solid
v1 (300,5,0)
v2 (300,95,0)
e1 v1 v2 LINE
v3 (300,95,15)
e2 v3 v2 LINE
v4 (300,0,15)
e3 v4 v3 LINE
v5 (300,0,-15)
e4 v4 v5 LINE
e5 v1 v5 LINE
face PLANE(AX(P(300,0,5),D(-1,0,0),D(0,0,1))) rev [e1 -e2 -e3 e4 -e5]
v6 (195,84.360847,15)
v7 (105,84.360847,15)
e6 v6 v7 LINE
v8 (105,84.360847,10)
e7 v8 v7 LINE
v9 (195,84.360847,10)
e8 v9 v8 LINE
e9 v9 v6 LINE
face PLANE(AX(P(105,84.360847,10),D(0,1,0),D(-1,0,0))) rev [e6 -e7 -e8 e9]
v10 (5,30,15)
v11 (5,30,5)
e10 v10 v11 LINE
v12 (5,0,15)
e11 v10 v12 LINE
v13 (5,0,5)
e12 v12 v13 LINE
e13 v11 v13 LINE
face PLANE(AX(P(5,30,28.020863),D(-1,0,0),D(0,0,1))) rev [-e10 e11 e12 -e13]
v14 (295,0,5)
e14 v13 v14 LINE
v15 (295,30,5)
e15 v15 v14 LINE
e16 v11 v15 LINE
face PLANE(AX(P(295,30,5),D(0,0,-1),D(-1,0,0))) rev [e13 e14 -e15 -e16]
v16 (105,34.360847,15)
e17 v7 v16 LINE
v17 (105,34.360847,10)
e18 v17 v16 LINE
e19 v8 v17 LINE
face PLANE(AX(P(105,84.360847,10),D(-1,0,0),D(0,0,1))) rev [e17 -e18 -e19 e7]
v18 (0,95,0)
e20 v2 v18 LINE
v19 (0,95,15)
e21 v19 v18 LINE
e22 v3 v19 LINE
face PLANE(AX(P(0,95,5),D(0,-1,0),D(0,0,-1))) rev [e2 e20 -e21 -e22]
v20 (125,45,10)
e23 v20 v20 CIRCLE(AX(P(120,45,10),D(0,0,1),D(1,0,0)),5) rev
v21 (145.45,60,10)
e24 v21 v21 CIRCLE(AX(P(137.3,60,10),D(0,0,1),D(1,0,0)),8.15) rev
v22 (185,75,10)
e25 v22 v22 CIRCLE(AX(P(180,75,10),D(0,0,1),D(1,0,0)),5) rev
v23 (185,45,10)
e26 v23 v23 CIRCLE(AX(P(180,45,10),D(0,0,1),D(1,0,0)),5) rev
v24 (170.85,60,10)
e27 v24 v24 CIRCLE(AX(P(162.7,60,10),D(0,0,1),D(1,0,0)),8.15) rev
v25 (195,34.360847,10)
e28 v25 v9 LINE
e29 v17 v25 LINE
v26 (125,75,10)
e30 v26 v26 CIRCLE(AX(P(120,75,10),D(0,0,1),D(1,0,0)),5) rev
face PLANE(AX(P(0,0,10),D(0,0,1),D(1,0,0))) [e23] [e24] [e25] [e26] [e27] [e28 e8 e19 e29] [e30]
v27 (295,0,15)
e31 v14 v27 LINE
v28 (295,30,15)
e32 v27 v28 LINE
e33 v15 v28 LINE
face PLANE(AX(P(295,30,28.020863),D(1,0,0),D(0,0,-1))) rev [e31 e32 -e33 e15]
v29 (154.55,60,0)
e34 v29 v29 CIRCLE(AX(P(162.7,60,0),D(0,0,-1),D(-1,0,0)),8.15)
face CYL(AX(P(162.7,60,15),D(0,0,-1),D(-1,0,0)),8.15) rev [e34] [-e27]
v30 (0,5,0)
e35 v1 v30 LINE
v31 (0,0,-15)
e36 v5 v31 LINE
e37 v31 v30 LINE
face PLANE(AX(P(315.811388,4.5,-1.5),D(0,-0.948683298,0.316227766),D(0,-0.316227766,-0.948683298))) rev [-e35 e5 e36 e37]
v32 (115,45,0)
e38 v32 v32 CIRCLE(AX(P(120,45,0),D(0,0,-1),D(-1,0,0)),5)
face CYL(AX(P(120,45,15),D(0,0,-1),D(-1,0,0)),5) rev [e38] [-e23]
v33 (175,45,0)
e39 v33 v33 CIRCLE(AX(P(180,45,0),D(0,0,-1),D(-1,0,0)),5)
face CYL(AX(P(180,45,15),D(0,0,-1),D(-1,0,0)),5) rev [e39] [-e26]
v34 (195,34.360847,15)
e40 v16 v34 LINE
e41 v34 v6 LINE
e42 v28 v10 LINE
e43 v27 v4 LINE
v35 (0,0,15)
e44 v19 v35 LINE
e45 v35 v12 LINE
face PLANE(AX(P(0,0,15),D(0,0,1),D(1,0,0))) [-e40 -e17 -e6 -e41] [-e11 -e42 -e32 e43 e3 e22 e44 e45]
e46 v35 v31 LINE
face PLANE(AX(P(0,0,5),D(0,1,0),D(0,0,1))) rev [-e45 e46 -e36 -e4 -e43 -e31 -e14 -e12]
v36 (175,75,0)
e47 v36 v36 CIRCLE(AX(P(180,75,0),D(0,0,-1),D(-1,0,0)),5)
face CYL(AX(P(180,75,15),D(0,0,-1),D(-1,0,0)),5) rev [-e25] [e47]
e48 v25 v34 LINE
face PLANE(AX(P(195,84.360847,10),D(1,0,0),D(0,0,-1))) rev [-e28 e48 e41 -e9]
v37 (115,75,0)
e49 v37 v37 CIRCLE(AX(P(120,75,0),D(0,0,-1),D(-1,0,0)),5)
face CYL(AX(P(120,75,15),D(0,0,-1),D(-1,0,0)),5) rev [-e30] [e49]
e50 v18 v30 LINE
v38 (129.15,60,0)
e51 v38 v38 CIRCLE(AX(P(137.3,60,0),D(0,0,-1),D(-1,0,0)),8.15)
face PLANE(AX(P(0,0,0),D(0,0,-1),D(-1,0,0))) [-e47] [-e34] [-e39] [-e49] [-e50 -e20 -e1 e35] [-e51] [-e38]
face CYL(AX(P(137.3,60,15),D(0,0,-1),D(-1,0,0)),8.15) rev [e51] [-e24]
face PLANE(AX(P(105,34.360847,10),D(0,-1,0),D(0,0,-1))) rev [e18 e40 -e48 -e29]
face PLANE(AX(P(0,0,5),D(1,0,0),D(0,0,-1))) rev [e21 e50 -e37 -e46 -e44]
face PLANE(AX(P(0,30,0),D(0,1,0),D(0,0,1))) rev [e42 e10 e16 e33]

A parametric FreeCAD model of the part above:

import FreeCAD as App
import Part
import Sketcher

V = App.Vector

doc = App.newDocument("Part")
params = doc.addObject("Spreadsheet::Sheet", "Params")
for row, (alias, value) in enumerate([
    ("sketch1_width", "300 mm"),
    ("sketch1_height", "95 mm"),
    ("pad1_length", "5 mm"),
    ("sketch2_width", "5 mm"),
    ("sketch2_height", "15 mm"),
    ("pad2_length", "300 mm"),
    ("sketch3_width", "300 mm"),
    ("sketch3_height", "95 mm"),
    ("pad3_length", "10 mm"),
    ("sketch4_diameter", "10 mm"),
    ("sketch4_diameter2", "16.3 mm"),
    ("sketch5_width", "290 mm"),
    ("pocket2_length", "30 mm"),
    ("sketch6_width", "90 mm"),
    ("sketch6_height", "50 mm"),
    ("pocket3_length", "5 mm"),
], start=1):
    params.set(f"A{row}", alias)
    params.set(f"B{row}", "=" + value)
    params.setAlias(f"B{row}", alias)

body = doc.addObject("PartDesign::Body", "Body")

sketch1 = body.newObject("Sketcher::SketchObject", "Sketch")
sketch1.AttachmentSupport = (doc.getObject("XY_Plane"), [""])
sketch1.MapMode = "FlatFace"
sketch1.addGeometry(Part.LineSegment(V(0, 95, 0), V(0, 0, 0)), False)
sketch1.addGeometry(Part.LineSegment(V(0, 0, 0), V(300, 0, 0)), False)
sketch1.addGeometry(Part.LineSegment(V(300, 0, 0), V(300, 95, 0)), False)
sketch1.addGeometry(Part.LineSegment(V(300, 95, 0), V(0, 95, 0)), False)
sketch1.addConstraint(Sketcher.Constraint("Coincident", 0, 2, 1, 1))
sketch1.addConstraint(Sketcher.Constraint("Coincident", 1, 2, 2, 1))
sketch1.addConstraint(Sketcher.Constraint("Coincident", 2, 2, 3, 1))
sketch1.addConstraint(Sketcher.Constraint("Coincident", 3, 2, 0, 1))
sketch1.addConstraint(Sketcher.Constraint("Vertical", 0))
sketch1.addConstraint(Sketcher.Constraint("Horizontal", 1))
sketch1.addConstraint(Sketcher.Constraint("Vertical", 2))
sketch1.addConstraint(Sketcher.Constraint("Horizontal", 3))
sketch1.addConstraint(Sketcher.Constraint("Coincident", 0, 2, -1, 1))
sketch1.addConstraint(Sketcher.Constraint("DistanceX", 1, 1, 1, 2, 300.0))
sketch1.addConstraint(Sketcher.Constraint("DistanceY", 0, 2, 0, 1, 95.0))
sketch1.setExpression("Constraints[9]", "Params.sketch1_width")
sketch1.setExpression("Constraints[10]", "Params.sketch1_height")
pad1 = body.newObject("PartDesign::Pad", "Pad")
pad1.Profile = sketch1
pad1.setExpression("Length", "Params.pad1_length")

sketch2 = body.newObject("Sketcher::SketchObject", "Sketch001")
sketch2.AttachmentSupport = (doc.getObject("YZ_Plane"), [""])
sketch2.MapMode = "FlatFace"
sketch2.addGeometry(Part.LineSegment(V(0, -15, 0), V(0, 0, 0)), False)
sketch2.addGeometry(Part.LineSegment(V(0, 0, 0), V(5, 0, 0)), False)
sketch2.addGeometry(Part.LineSegment(V(5, 0, 0), V(0, -15, 0)), False)
sketch2.addConstraint(Sketcher.Constraint("Coincident", 0, 2, 1, 1))
sketch2.addConstraint(Sketcher.Constraint("Coincident", 1, 2, 2, 1))
sketch2.addConstraint(Sketcher.Constraint("Coincident", 2, 2, 0, 1))
sketch2.addConstraint(Sketcher.Constraint("Vertical", 0))
sketch2.addConstraint(Sketcher.Constraint("Horizontal", 1))
sketch2.addConstraint(Sketcher.Constraint("Coincident", 0, 2, -1, 1))
sketch2.addConstraint(Sketcher.Constraint("DistanceX", 1, 1, 1, 2, 5.0))
sketch2.addConstraint(Sketcher.Constraint("DistanceY", 0, 1, 0, 2, 15.0))
sketch2.setExpression("Constraints[6]", "Params.sketch2_width")
sketch2.setExpression("Constraints[7]", "Params.sketch2_height")
pad2 = body.newObject("PartDesign::Pad", "Pad001")
pad2.Profile = sketch2
pad2.setExpression("Length", "Params.pad2_length")

sketch3 = body.newObject("Sketcher::SketchObject", "Sketch002")
sketch3.AttachmentSupport = (doc.getObject("XY_Plane"), [""])
sketch3.MapMode = "FlatFace"
sketch3.AttachmentOffset = App.Placement(V(0, 0, 5), App.Rotation())
sketch3.addGeometry(Part.LineSegment(V(0, 95, 0), V(0, 0, 0)), False)
sketch3.addGeometry(Part.LineSegment(V(0, 0, 0), V(300, 0, 0)), False)
sketch3.addGeometry(Part.LineSegment(V(300, 0, 0), V(300, 95, 0)), False)
sketch3.addGeometry(Part.LineSegment(V(300, 95, 0), V(0, 95, 0)), False)
sketch3.addConstraint(Sketcher.Constraint("Coincident", 0, 2, 1, 1))
sketch3.addConstraint(Sketcher.Constraint("Coincident", 1, 2, 2, 1))
sketch3.addConstraint(Sketcher.Constraint("Coincident", 2, 2, 3, 1))
sketch3.addConstraint(Sketcher.Constraint("Coincident", 3, 2, 0, 1))
sketch3.addConstraint(Sketcher.Constraint("Vertical", 0))
sketch3.addConstraint(Sketcher.Constraint("Horizontal", 1))
sketch3.addConstraint(Sketcher.Constraint("Vertical", 2))
sketch3.addConstraint(Sketcher.Constraint("Horizontal", 3))
sketch3.addConstraint(Sketcher.Constraint("Coincident", 0, 2, -1, 1))
sketch3.addConstraint(Sketcher.Constraint("DistanceX", 1, 1, 1, 2, 300.0))
sketch3.addConstraint(Sketcher.Constraint("DistanceY", 0, 2, 0, 1, 95.0))
sketch3.setExpression("Constraints[9]", "Params.sketch3_width")
sketch3.setExpression("Constraints[10]", "Params.sketch3_height")
pad3 = body.newObject("PartDesign::Pad", "Pad002")
pad3.Profile = sketch3
pad3.setExpression("Length", "Params.pad3_length")

sketch4 = body.newObject("Sketcher::SketchObject", "Sketch003")
sketch4.AttachmentSupport = (doc.getObject("XY_Plane"), [""])
sketch4.MapMode = "FlatFace"
sketch4.addGeometry(Part.Circle(V(162.7, 60, 0), V(0, 0, 1), 8.15), False)
sketch4.addGeometry(Part.Circle(V(137.3, 60, 0), V(0, 0, 1), 8.15), False)
sketch4.addGeometry(Part.Circle(V(180, 75, 0), V(0, 0, 1), 5), False)
sketch4.addGeometry(Part.Circle(V(180, 45, 0), V(0, 0, 1), 5), False)
sketch4.addGeometry(Part.Circle(V(120, 75, 0), V(0, 0, 1), 5), False)
sketch4.addGeometry(Part.Circle(V(120, 45, 0), V(0, 0, 1), 5), False)
sketch4.addConstraint(Sketcher.Constraint("Equal", 0, 1))
sketch4.addConstraint(Sketcher.Constraint("Equal", 2, 3))
sketch4.addConstraint(Sketcher.Constraint("Equal", 3, 4))
sketch4.addConstraint(Sketcher.Constraint("Equal", 4, 5))
sketch4.addConstraint(Sketcher.Constraint("Horizontal", 0, 3, 1, 3))
sketch4.addConstraint(Sketcher.Constraint("Horizontal", 2, 3, 4, 3))
sketch4.addConstraint(Sketcher.Constraint("Horizontal", 3, 3, 5, 3))
sketch4.addConstraint(Sketcher.Constraint("Vertical", 2, 3, 3, 3))
sketch4.addConstraint(Sketcher.Constraint("Vertical", 4, 3, 5, 3))
sketch4.addConstraint(Sketcher.Constraint("Diameter", 2, 10.0))
sketch4.addConstraint(Sketcher.Constraint("Diameter", 0, 16.3))
sketch4.addConstraint(Sketcher.Constraint("DistanceY", -1, 1, 0, 3, 60.0))
sketch4.addConstraint(Sketcher.Constraint("DistanceX", -1, 1, 2, 3, 180.0))
sketch4.addConstraint(Sketcher.Constraint("DistanceY", -1, 1, 2, 3, 75.0))
sketch4.addConstraint(Sketcher.Constraint("DistanceY", -1, 1, 3, 3, 45.0))
sketch4.addConstraint(Sketcher.Constraint("DistanceX", -1, 1, 4, 3, 120.0))
sketch4.addConstraint(Sketcher.Constraint("DistanceX", -1, 1, 0, 3, 162.7))
sketch4.addConstraint(Sketcher.Constraint("DistanceX", -1, 1, 1, 3, 137.3))
sketch4.setExpression("Constraints[9]", "Params.sketch4_diameter")
sketch4.setExpression("Constraints[10]", "Params.sketch4_diameter2")
pocket1 = body.newObject("PartDesign::Pocket", "Pocket")
pocket1.Profile = sketch4
pocket1.Type = "ThroughAll"
pocket1.Reversed = True

sketch5 = body.newObject("Sketcher::SketchObject", "Sketch004")
sketch5.AttachmentSupport = (doc.getObject("XZ_Plane"), [""])
sketch5.MapMode = "FlatFace"
sketch5.addGeometry(Part.LineSegment(V(5, 28.020863, 0), V(5, 5, 0)), False)
sketch5.addGeometry(Part.LineSegment(V(5, 5, 0), V(295, 5, 0)), False)
sketch5.addGeometry(Part.LineSegment(V(295, 5, 0), V(295, 28.020863, 0)), False)
sketch5.addGeometry(Part.LineSegment(V(295, 28.020863, 0), V(5, 28.020863, 0)), False)
sketch5.addConstraint(Sketcher.Constraint("Coincident", 0, 2, 1, 1))
sketch5.addConstraint(Sketcher.Constraint("Coincident", 1, 2, 2, 1))
sketch5.addConstraint(Sketcher.Constraint("Coincident", 2, 2, 3, 1))
sketch5.addConstraint(Sketcher.Constraint("Coincident", 3, 2, 0, 1))
sketch5.addConstraint(Sketcher.Constraint("Vertical", 0))
sketch5.addConstraint(Sketcher.Constraint("Horizontal", 1))
sketch5.addConstraint(Sketcher.Constraint("Vertical", 2))
sketch5.addConstraint(Sketcher.Constraint("Horizontal", 3))
sketch5.addConstraint(Sketcher.Constraint("DistanceX", 1, 1, 1, 2, 290.0))
sketch5.addConstraint(Sketcher.Constraint("DistanceX", -1, 1, 0, 2, 5.0))
sketch5.addConstraint(Sketcher.Constraint("DistanceY", -1, 1, 0, 2, 5.0))
sketch5.addConstraint(Sketcher.Constraint("DistanceY", 0, 2, 0, 1, 23.020863))
sketch5.setExpression("Constraints[8]", "Params.sketch5_width")
pocket2 = body.newObject("PartDesign::Pocket", "Pocket001")
pocket2.Profile = sketch5
pocket2.setExpression("Length", "Params.pocket2_length")

sketch6 = body.newObject("Sketcher::SketchObject", "Sketch005")
sketch6.AttachmentSupport = (doc.getObject("XY_Plane"), [""])
sketch6.MapMode = "FlatFace"
sketch6.AttachmentOffset = App.Placement(V(0, 0, 15), App.Rotation())
sketch6.addGeometry(Part.LineSegment(V(105, 84.360847, 0), V(105, 34.360847, 0)), False)
sketch6.addGeometry(Part.LineSegment(V(105, 34.360847, 0), V(195, 34.360847, 0)), False)
sketch6.addGeometry(Part.LineSegment(V(195, 34.360847, 0), V(195, 84.360847, 0)), False)
sketch6.addGeometry(Part.LineSegment(V(195, 84.360847, 0), V(105, 84.360847, 0)), False)
sketch6.addConstraint(Sketcher.Constraint("Coincident", 0, 2, 1, 1))
sketch6.addConstraint(Sketcher.Constraint("Coincident", 1, 2, 2, 1))
sketch6.addConstraint(Sketcher.Constraint("Coincident", 2, 2, 3, 1))
sketch6.addConstraint(Sketcher.Constraint("Coincident", 3, 2, 0, 1))
sketch6.addConstraint(Sketcher.Constraint("Vertical", 0))
sketch6.addConstraint(Sketcher.Constraint("Horizontal", 1))
sketch6.addConstraint(Sketcher.Constraint("Vertical", 2))
sketch6.addConstraint(Sketcher.Constraint("Horizontal", 3))
sketch6.addConstraint(Sketcher.Constraint("DistanceX", 1, 1, 1, 2, 90.0))
sketch6.addConstraint(Sketcher.Constraint("DistanceY", 0, 2, 0, 1, 50.0))
sketch6.addConstraint(Sketcher.Constraint("DistanceX", -1, 1, 0, 2, 105.0))
sketch6.addConstraint(Sketcher.Constraint("DistanceY", -1, 1, 0, 2, 34.360847))
sketch6.setExpression("Constraints[8]", "Params.sketch6_width")
sketch6.setExpression("Constraints[9]", "Params.sketch6_height")
pocket3 = body.newObject("PartDesign::Pocket", "Pocket002")
pocket3.Profile = sketch6
pocket3.setExpression("Length", "Params.pocket3_length")

doc.recompute()
